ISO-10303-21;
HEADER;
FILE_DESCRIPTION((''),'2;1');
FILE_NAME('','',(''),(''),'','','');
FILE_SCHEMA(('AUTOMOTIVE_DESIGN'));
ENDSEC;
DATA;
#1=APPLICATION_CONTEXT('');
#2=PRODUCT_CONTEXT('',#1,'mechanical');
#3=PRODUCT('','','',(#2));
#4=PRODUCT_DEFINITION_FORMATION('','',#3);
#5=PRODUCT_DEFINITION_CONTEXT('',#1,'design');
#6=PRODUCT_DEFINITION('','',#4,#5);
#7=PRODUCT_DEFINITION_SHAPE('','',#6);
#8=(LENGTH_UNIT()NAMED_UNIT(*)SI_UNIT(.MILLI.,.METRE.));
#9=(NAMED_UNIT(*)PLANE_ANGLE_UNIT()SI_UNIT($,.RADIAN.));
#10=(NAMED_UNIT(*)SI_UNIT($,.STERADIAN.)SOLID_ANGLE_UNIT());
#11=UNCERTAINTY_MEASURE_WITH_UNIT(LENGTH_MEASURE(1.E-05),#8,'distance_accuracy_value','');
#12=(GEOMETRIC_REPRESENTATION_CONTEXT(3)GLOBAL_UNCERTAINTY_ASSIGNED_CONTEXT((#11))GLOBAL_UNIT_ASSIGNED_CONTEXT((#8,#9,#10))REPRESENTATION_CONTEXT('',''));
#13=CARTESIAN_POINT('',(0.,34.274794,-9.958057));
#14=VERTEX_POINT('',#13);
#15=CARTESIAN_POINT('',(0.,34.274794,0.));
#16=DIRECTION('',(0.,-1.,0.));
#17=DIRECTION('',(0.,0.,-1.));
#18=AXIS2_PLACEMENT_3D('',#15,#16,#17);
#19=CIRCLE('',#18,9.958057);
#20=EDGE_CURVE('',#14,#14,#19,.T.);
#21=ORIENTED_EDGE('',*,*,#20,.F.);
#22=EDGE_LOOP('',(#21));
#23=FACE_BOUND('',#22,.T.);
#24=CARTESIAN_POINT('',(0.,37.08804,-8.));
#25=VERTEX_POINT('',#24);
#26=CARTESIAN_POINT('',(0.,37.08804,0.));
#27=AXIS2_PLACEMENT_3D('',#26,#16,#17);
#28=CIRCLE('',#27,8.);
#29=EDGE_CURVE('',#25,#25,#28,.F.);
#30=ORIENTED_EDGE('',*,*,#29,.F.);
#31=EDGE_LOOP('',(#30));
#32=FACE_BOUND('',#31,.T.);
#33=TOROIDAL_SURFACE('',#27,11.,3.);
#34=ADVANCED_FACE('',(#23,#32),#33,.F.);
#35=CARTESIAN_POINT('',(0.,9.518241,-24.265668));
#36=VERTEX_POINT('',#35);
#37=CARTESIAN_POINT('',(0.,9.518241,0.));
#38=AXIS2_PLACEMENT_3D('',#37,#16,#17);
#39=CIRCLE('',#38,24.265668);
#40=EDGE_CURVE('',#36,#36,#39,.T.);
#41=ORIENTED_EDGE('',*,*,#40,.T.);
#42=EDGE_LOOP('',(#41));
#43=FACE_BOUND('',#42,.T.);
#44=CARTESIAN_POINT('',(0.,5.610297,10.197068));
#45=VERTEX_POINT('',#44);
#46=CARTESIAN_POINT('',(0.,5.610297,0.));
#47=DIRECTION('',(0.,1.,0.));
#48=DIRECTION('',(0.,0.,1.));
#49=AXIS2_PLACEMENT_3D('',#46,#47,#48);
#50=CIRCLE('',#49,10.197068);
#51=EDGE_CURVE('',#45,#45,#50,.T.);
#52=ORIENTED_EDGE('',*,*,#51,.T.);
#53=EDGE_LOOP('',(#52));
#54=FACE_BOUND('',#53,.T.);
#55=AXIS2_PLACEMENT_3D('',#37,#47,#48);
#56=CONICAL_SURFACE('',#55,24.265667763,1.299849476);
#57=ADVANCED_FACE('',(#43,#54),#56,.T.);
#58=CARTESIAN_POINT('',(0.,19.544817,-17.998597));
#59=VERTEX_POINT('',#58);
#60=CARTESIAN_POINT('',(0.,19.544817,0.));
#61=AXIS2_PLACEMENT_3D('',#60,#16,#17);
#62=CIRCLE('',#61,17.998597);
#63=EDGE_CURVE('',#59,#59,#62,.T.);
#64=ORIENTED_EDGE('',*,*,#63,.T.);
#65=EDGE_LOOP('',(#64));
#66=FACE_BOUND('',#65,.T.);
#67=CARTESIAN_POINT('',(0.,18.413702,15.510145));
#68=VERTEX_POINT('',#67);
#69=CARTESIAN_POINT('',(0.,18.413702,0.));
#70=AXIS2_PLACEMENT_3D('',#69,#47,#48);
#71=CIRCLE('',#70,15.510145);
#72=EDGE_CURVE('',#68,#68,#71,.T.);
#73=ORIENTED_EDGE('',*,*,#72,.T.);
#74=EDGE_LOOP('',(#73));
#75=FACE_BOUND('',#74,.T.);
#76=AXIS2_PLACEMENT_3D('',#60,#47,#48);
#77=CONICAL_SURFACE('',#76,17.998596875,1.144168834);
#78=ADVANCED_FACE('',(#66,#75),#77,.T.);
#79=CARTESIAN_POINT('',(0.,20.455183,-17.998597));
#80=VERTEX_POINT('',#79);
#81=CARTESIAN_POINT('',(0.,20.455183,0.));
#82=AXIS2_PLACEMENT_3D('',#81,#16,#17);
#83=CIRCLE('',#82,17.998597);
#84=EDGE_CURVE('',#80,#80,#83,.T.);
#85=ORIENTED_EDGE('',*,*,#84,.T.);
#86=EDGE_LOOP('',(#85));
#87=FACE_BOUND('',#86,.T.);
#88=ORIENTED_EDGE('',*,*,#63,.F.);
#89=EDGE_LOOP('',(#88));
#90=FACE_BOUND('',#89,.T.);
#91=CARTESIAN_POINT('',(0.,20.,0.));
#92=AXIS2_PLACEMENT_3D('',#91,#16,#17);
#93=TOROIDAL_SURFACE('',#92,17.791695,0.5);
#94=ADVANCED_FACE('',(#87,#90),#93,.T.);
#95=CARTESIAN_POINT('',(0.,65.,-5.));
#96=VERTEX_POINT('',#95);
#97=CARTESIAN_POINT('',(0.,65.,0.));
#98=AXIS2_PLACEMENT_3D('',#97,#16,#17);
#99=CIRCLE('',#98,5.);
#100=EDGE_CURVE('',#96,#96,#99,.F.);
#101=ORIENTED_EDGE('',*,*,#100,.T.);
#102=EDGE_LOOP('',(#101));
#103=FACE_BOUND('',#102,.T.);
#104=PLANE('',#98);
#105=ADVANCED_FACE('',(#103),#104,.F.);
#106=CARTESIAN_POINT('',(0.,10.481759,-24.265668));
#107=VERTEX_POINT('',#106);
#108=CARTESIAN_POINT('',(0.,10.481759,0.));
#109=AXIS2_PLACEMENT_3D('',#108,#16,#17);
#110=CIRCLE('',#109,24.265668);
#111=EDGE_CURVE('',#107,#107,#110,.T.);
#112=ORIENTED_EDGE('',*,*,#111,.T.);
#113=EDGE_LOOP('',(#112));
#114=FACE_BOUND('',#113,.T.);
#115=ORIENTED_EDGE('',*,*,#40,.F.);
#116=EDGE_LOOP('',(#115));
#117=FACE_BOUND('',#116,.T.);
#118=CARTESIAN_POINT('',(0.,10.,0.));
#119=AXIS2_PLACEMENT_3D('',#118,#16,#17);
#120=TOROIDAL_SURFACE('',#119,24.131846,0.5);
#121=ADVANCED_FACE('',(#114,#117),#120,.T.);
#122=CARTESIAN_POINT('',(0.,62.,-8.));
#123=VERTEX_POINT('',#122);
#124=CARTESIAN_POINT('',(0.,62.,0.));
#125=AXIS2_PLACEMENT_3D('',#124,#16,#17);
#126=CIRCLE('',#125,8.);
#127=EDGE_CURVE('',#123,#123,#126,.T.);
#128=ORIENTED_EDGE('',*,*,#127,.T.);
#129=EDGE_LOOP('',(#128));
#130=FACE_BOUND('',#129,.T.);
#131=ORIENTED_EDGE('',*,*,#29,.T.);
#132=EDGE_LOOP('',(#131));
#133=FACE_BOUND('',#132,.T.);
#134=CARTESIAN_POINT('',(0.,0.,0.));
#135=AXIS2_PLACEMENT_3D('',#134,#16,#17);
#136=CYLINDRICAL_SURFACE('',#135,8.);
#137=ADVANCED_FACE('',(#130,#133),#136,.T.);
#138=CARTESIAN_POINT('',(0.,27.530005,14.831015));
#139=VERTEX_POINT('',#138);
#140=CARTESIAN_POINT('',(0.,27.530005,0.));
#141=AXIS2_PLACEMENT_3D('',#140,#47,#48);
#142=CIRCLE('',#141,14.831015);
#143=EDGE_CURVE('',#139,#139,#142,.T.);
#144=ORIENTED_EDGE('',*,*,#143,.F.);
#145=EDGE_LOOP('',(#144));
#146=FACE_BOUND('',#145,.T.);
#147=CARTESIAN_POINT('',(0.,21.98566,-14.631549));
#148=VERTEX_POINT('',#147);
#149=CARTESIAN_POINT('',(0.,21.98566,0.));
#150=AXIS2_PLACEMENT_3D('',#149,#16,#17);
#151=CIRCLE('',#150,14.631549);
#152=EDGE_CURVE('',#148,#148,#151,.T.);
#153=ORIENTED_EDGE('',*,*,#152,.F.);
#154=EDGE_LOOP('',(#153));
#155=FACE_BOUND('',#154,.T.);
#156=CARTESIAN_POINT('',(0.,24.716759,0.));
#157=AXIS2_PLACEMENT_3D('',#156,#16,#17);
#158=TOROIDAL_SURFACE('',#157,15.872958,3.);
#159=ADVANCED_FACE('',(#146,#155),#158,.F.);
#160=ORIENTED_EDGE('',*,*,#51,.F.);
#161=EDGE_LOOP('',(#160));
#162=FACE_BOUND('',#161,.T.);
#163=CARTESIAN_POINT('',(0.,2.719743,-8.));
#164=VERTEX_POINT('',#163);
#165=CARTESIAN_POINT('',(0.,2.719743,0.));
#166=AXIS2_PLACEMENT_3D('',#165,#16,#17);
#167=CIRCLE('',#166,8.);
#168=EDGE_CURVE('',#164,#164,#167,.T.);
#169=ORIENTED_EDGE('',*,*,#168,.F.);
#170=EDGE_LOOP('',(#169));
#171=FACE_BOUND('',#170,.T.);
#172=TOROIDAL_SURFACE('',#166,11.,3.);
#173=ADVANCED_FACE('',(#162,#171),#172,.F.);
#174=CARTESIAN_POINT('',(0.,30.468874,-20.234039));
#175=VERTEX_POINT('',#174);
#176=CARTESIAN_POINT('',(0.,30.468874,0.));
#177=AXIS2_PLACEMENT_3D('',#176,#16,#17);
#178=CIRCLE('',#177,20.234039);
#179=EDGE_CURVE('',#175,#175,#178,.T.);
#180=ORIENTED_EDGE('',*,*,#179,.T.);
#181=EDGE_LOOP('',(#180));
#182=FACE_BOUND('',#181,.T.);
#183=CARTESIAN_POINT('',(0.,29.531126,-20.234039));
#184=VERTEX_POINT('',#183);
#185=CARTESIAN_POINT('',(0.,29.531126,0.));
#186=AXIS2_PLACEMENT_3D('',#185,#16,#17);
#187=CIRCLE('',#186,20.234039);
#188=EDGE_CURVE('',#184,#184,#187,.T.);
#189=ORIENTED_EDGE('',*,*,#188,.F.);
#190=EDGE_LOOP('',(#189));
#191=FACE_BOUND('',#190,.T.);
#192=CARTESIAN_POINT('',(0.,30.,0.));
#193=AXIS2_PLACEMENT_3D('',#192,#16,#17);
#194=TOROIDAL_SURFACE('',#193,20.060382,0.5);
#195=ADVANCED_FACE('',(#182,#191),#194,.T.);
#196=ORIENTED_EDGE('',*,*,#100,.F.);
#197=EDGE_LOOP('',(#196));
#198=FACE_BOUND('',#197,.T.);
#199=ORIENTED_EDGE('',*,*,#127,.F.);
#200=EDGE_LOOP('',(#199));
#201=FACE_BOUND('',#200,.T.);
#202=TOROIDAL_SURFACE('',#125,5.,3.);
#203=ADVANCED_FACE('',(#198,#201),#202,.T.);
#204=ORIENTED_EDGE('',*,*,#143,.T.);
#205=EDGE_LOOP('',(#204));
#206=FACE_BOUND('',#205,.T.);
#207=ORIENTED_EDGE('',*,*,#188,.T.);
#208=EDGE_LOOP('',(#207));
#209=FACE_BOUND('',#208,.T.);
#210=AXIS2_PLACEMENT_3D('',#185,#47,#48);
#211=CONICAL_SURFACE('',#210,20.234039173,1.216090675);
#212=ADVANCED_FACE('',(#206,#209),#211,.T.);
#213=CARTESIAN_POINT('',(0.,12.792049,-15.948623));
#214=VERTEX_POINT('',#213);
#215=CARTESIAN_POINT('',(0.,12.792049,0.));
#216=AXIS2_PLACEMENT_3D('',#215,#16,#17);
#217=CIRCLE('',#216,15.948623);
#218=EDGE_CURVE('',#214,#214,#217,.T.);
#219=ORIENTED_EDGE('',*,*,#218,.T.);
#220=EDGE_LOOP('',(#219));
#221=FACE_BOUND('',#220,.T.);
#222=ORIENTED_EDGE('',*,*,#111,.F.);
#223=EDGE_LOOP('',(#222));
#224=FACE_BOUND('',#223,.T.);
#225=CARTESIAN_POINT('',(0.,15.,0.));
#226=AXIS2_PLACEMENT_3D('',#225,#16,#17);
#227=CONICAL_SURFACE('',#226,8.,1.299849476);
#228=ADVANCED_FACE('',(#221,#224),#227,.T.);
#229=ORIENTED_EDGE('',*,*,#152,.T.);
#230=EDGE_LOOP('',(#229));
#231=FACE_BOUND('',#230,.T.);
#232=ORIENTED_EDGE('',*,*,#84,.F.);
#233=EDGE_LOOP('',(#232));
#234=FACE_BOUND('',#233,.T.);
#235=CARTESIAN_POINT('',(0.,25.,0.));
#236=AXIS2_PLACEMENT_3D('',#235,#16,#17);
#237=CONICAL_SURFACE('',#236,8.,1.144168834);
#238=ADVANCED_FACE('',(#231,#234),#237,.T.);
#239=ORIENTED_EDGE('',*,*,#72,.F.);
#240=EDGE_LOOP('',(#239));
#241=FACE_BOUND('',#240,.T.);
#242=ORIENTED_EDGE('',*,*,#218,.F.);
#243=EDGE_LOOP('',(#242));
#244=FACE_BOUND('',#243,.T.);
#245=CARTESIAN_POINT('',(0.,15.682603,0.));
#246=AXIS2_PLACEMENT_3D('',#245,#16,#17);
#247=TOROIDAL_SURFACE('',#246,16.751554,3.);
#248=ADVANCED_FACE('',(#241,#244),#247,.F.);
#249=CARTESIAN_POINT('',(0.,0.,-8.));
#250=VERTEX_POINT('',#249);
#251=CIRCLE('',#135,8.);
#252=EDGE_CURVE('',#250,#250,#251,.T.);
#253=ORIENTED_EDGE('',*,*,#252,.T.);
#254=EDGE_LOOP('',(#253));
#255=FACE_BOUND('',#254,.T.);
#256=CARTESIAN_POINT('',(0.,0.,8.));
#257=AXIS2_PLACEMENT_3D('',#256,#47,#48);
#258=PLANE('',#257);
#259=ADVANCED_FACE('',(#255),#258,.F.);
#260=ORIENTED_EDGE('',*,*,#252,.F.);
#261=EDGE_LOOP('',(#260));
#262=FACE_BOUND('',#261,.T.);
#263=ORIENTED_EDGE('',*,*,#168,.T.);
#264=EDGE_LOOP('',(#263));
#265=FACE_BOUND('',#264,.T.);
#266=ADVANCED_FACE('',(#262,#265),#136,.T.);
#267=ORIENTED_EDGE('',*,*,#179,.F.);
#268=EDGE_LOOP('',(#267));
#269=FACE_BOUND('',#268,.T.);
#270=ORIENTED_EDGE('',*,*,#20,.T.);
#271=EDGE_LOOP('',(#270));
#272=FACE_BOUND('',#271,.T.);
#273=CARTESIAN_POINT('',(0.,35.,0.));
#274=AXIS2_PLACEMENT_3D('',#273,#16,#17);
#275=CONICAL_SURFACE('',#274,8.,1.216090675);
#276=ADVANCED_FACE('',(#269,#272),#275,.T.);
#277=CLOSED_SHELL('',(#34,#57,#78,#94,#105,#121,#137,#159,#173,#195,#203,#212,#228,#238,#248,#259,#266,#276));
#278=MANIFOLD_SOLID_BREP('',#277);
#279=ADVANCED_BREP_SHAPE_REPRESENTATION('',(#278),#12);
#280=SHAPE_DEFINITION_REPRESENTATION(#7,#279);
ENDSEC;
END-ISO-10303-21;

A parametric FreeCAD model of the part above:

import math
import FreeCAD as App
import Part
import Sketcher
from FreeCAD import Vector


def edges_at(feature, points):
    """Names of the edges that pass closest to the given points."""
    edges = feature.Shape.Edges
    near = lambda p: min(range(len(edges)), key=lambda i: edges[i].distToShape(Part.Vertex(*p))[0])
    return sorted({f"Edge{near(p) + 1}" for p in points})

doc = App.newDocument("Part")
body = doc.addObject("PartDesign::Body", "Body")

sketch1 = body.newObject("Sketcher::SketchObject", "Sketch")
sketch1.AttachmentSupport = (doc.getObject("YZ_Plane"), [""])
sketch1.MapMode = "FlatFace"
sketch1.addGeometry([
    Part.LineSegment(Vector(65, 0, 0), Vector(65, 8, 0)),
    Part.LineSegment(Vector(65, 8, 0), Vector(35, 8, 0)),
    Part.LineSegment(Vector(35, 8, 0), Vector(30.468874, 20.234039, 0)),
    Part.ArcOfCircle(Part.Circle(Vector(30, 20.060382, 0), Vector(0, 0, 1), 0.5), math.radians(20.323137), math.radians(159.676863)),
    Part.LineSegment(Vector(29.531126, 20.234039, 0), Vector(25, 8, 0)),
    Part.LineSegment(Vector(25, 8, 0), Vector(20.455183, 17.998597, 0)),
    Part.ArcOfCircle(Part.Circle(Vector(20, 17.791695, 0), Vector(0, 0, 1), 0.5), math.radians(24.443955), math.radians(155.556045)),
    Part.LineSegment(Vector(19.544817, 17.998597, 0), Vector(15, 8, 0)),
    Part.LineSegment(Vector(15, 8, 0), Vector(10.481759, 24.265668, 0)),
    Part.ArcOfCircle(Part.Circle(Vector(10, 24.131846, 0), Vector(0, 0, 1), 0.5), math.radians(15.524111), math.radians(164.475889)),
    Part.LineSegment(Vector(9.518241, 24.265668, 0), Vector(5, 8, 0)),
    Part.LineSegment(Vector(5, 8, 0), Vector(0, 8, 0)),
    Part.LineSegment(Vector(0, 8, 0), Vector(0, 0, 0)),
    Part.LineSegment(Vector(0, 0, 0), Vector(65, 0, 0)),
], False)
sketch1.addConstraint([
    Sketcher.Constraint("Coincident", 0, 2, 1, 1),
    Sketcher.Constraint("Coincident", 1, 2, 2, 1),
    Sketcher.Constraint("Coincident", 2, 2, 3, 1),
    Sketcher.Constraint("Coincident", 3, 2, 4, 1),
    Sketcher.Constraint("Coincident", 4, 2, 5, 1),
    Sketcher.Constraint("Coincident", 5, 2, 6, 1),
    Sketcher.Constraint("Coincident", 6, 2, 7, 1),
    Sketcher.Constraint("Coincident", 7, 2, 8, 1),
    Sketcher.Constraint("Coincident", 8, 2, 9, 1),
    Sketcher.Constraint("Coincident", 9, 2, 10, 1),
    Sketcher.Constraint("Coincident", 10, 2, 11, 1),
    Sketcher.Constraint("Coincident", 11, 2, 12, 1),
    Sketcher.Constraint("Coincident", 12, 2, 13, 1),
    Sketcher.Constraint("Coincident", 13, 2, 0, 1),
    Sketcher.Constraint("Vertical", 0),
    Sketcher.Constraint("Horizontal", 1),
    Sketcher.Constraint("Horizontal", 11),
    Sketcher.Constraint("Vertical", 12),
    Sketcher.Constraint("Horizontal", 13),
    Sketcher.Constraint("Coincident", 12, 2, -1, 1),
    Sketcher.Constraint("Radius", 3, 0.5),
    Sketcher.Constraint("Radius", 6, 0.5),
    Sketcher.Constraint("Radius", 9, 0.5),
    Sketcher.Constraint("DistanceX", 1, 2, 1, 1, 30.0),
    Sketcher.Constraint("DistanceX", 11, 2, 11, 1, 5.0),
    Sketcher.Constraint("DistanceX", 13, 1, 13, 2, 65.0),
    Sketcher.Constraint("DistanceY", 0, 1, 0, 2, 8.0),
    Sketcher.Constraint("DistanceY", 12, 2, 12, 1, 8.0),
    Sketcher.Constraint("DistanceX", -1, 1, 3, 3, 30.0),
    Sketcher.Constraint("DistanceX", -1, 1, 6, 3, 20.0),
    Sketcher.Constraint("DistanceX", -1, 1, 9, 3, 10.0),
    Sketcher.Constraint("DistanceX", -1, 1, 4, 2, 25.0),
    Sketcher.Constraint("DistanceY", -1, 1, 4, 2, 8.0),
    Sketcher.Constraint("DistanceX", -1, 1, 7, 2, 15.0),
    Sketcher.Constraint("DistanceY", -1, 1, 7, 2, 8.0),
    Sketcher.Constraint("DistanceY", 6, 3, 5, 2, 0.206901),
    Sketcher.Constraint("DistanceY", 6, 3, 6, 2, 0.206901),
    Sketcher.Constraint("Distance", 2, 13.04618),
    Sketcher.Constraint("Distance", 4, 13.04618),
    Sketcher.Constraint("Distance", 8, 16.881542),
    Sketcher.Constraint("Distance", 10, 16.881542),
    Sketcher.Constraint("DistanceY", -1, 1, 3, 3, 20.060382),
    Sketcher.Constraint("DistanceX", -1, 1, 8, 2, 10.481759),
    Sketcher.Constraint("DistanceY", 6, 3, 9, 3, 6.34015),
])
revolution = body.newObject("PartDesign::Revolution", "Revolution")
revolution.Profile = sketch1
revolution.ReferenceAxis = (sketch1, ["H_Axis"])
revolution.Angle = 360
doc.recompute()

fillet = body.newObject("PartDesign::Fillet", "Fillet")
fillet.Base = (revolution, edges_at(revolution, [
    (0, 5, 8),
    (0, 15, 8),
    (0, 25, 8),
    (0, 35, 8),
    (0, 65, 8),
]))
fillet.Radius = 3

doc.recompute()
